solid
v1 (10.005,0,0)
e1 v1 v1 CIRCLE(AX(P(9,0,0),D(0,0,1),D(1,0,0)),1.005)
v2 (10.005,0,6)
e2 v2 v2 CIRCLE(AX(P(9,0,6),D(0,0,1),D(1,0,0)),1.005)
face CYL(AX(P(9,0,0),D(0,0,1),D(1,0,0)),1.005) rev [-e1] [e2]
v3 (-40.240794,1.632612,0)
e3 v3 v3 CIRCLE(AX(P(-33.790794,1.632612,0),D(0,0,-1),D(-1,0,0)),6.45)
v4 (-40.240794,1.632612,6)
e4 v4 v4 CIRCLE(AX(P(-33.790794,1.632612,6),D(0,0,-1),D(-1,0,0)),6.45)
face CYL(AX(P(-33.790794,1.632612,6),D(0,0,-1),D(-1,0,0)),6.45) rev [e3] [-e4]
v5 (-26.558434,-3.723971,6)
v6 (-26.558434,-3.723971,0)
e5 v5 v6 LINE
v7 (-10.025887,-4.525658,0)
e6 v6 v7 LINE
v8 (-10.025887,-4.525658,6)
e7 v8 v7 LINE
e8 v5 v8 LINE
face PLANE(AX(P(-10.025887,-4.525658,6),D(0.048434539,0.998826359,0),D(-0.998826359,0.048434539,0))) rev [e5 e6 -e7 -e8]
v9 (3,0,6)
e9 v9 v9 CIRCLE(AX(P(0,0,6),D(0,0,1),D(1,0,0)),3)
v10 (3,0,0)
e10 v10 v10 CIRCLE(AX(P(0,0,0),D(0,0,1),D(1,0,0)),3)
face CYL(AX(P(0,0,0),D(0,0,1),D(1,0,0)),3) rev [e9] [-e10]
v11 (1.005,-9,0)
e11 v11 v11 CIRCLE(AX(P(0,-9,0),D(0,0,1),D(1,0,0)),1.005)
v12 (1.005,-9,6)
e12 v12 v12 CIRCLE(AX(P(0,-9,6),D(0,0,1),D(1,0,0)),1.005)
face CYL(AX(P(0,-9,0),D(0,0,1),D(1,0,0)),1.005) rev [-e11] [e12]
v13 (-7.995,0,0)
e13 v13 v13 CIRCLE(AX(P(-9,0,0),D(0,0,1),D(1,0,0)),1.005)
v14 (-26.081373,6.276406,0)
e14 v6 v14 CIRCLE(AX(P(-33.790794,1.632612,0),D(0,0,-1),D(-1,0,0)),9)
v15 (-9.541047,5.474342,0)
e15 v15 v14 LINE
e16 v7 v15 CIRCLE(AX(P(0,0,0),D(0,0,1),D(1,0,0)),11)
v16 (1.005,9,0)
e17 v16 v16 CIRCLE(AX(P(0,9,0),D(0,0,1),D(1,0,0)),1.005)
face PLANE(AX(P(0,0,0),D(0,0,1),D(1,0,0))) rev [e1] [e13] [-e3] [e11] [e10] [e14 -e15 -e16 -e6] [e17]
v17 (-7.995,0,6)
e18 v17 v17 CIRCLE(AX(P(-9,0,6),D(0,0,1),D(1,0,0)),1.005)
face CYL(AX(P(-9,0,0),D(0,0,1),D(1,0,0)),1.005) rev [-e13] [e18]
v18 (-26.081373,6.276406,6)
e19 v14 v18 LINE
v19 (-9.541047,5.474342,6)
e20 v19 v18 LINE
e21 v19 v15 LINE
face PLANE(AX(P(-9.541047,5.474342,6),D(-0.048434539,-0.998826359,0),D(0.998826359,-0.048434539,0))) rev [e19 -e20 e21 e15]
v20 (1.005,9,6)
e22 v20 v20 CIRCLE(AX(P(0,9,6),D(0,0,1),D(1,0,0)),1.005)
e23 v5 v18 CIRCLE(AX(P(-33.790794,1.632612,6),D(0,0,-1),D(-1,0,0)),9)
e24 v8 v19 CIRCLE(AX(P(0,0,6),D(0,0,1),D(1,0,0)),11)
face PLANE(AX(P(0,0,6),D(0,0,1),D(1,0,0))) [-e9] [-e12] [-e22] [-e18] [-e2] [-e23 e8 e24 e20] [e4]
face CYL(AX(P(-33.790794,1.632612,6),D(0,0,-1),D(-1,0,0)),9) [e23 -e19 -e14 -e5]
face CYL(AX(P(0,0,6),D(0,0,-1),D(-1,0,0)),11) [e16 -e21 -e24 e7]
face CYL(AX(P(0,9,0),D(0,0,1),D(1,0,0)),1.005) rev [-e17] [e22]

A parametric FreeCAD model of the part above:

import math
import FreeCAD as App
import Part
import Sketcher
Q = App.Units.Quantity

doc = App.newDocument("Part")
body = doc.addObject("PartDesign::Body", "Body")

# Sketch on XY plane
sketch1 = body.newObject("Sketcher::SketchObject", "Sketch")
sketch1.AttachmentSupport = (doc.getObject("XY_Plane"), [""])
sketch1.MapMode = "FlatFace"
sketch1.addGeometry(Part.LineSegment(App.Vector(-40.025887, -3.070915, 0), App.Vector(-10.025887, -4.525658, 0)), False)
sketch1.addGeometry(Part.ArcOfCircle(Part.Circle(App.Vector(0, 0, 0), App.Vector(0, 0, 1), 11), math.radians(-155.705713), math.radians(150.154202)), False)
sketch1.addGeometry(Part.LineSegment(App.Vector(-9.541047, 5.474342, 0), App.Vector(-39.541047, 6.929085, 0)), False)
sketch1.addGeometry(Part.LineSegment(App.Vector(-39.541047, 6.929085, 0), App.Vector(-40.025887, -3.070915, 0)), False)
sketch1.addConstraint(Sketcher.Constraint("Coincident", 0, 2, 1, 1))
sketch1.addConstraint(Sketcher.Constraint("Coincident", 1, 2, 2, 1))
sketch1.addConstraint(Sketcher.Constraint("Coincident", 2, 2, 3, 1))
sketch1.addConstraint(Sketcher.Constraint("Coincident", 3, 2, 0, 1))
sketch1.addConstraint(Sketcher.Constraint("Coincident", 1, 3, -1, 1))
sketch1.addConstraint(Sketcher.Constraint("Parallel", 0, 2))
sketch1.addConstraint(Sketcher.Constraint("Equal", 0, 2))
sketch1.addConstraint(Sketcher.Constraint("Radius", 1, Q("11 mm")))
sketch1.addConstraint(Sketcher.Constraint("DistanceY", 0, 2, 1, 2, Q("10 mm")))
sketch1.addConstraint(Sketcher.Constraint("DistanceX", 2, 2, 1, 2, Q("30 mm")))
sketch1.addConstraint(Sketcher.Constraint("Distance", 0, Q("30.035251 mm")))
sketch1.addConstraint(Sketcher.Constraint("DistanceY", 0, 2, -1, 1, Q("4.525658 mm")))
pad1 = body.newObject("PartDesign::Pad", "Pad")
pad1.Profile = sketch1
pad1.Length = 6

# Sketch on XY plane
sketch2 = body.newObject("Sketcher::SketchObject", "Sketch001")
sketch2.AttachmentSupport = (doc.getObject("XY_Plane"), [""])
sketch2.MapMode = "FlatFace"
sketch2.AttachmentOffset = App.Placement(App.Vector(0, 0, 6), App.Rotation())
sketch2.addGeometry(Part.Circle(App.Vector(0, 9, 0), App.Vector(0, 0, 1), 1.005), False)
sketch2.addGeometry(Part.Circle(App.Vector(9, 0, 0), App.Vector(0, 0, 1), 1.005), False)
sketch2.addGeometry(Part.Circle(App.Vector(0, -9, 0), App.Vector(0, 0, 1), 1.005), False)
sketch2.addGeometry(Part.Circle(App.Vector(-9, 0, 0), App.Vector(0, 0, 1), 1.005), False)
sketch2.addGeometry(Part.Circle(App.Vector(-33.790794, 1.632612, 0), App.Vector(0, 0, 1), 1.005), False)
sketch2.addGeometry(Part.Circle(App.Vector(0, 0, 0), App.Vector(0, 0, 1), 3), False)
sketch2.addConstraint(Sketcher.Constraint("Coincident", 5, 3, -1, 1))
sketch2.addConstraint(Sketcher.Constraint("Equal", 0, 1))
sketch2.addConstraint(Sketcher.Constraint("Equal", 1, 2))
sketch2.addConstraint(Sketcher.Constraint("Equal", 2, 3))
sketch2.addConstraint(Sketcher.Constraint("Equal", 3, 4))
sketch2.addConstraint(Sketcher.Constraint("Symmetric", 0, 3, 2, 3, -1, 1))
sketch2.addConstraint(Sketcher.Constraint("Symmetric", 1, 3, 3, 3, -1, 1))
sketch2.addConstraint(Sketcher.Constraint("PointOnObject", 0, 3, -2))
sketch2.addConstraint(Sketcher.Constraint("PointOnObject", 1, 3, -1))
sketch2.addConstraint(Sketcher.Constraint("Diameter", 5, Q("6 mm")))
sketch2.addConstraint(Sketcher.Constraint("Diameter", 0, Q("2.01 mm")))
sketch2.addConstraint(Sketcher.Constraint("DistanceY", -1, 1, 0, 3, Q("9 mm")))
sketch2.addConstraint(Sketcher.Constraint("DistanceX", -1, 1, 1, 3, Q("9 mm")))
sketch2.addConstraint(Sketcher.Constraint("DistanceY", -1, 1, 4, 3, Q("1.632612 mm")))
sketch2.addConstraint(Sketcher.Constraint("DistanceX", 4, 3, -1, 1, Q("33.790794 mm")))
pocket1 = body.newObject("PartDesign::Pocket", "Pocket")
pocket1.Profile = sketch2
pocket1.Length = 6

# Sketch on XY plane
sketch3 = body.newObject("Sketcher::SketchObject", "Sketch002")
sketch3.AttachmentSupport = (doc.getObject("XY_Plane"), [""])
sketch3.MapMode = "FlatFace"
sketch3.addGeometry(Part.Circle(App.Vector(-33.790794, 1.632612, 0), App.Vector(0, 0, 1), 9), False)
sketch3.addConstraint(Sketcher.Constraint("Diameter", 0, Q("18 mm")))
sketch3.addConstraint(Sketcher.Constraint("DistanceY", -1, 1, 0, 3, Q("1.632612 mm")))
sketch3.addConstraint(Sketcher.Constraint("DistanceX", 0, 3, -1, 1, Q("33.790794 mm")))
pad2 = body.newObject("PartDesign::Pad", "Pad001")
pad2.Profile = sketch3
pad2.Length = 6

# Sketch on XY plane
sketch4 = body.newObject("Sketcher::SketchObject", "Sketch003")
sketch4.AttachmentSupport = (doc.getObject("XY_Plane"), [""])
sketch4.MapMode = "FlatFace"
sketch4.addGeometry(Part.Circle(App.Vector(-33.790794, 1.632612, 0), App.Vector(0, 0, 1), 6.45), False)
sketch4.addConstraint(Sketcher.Constraint("Diameter", 0, Q("12.9 mm")))
sketch4.addConstraint(Sketcher.Constraint("DistanceY", -1, 1, 0, 3, Q("1.632612 mm")))
sketch4.addConstraint(Sketcher.Constraint("DistanceX", 0, 3, -1, 1, Q("33.790794 mm")))
pocket2 = body.newObject("PartDesign::Pocket", "Pocket001")
pocket2.Profile = sketch4
pocket2.Length = 6
pocket2.Reversed = True

doc.recompute()
